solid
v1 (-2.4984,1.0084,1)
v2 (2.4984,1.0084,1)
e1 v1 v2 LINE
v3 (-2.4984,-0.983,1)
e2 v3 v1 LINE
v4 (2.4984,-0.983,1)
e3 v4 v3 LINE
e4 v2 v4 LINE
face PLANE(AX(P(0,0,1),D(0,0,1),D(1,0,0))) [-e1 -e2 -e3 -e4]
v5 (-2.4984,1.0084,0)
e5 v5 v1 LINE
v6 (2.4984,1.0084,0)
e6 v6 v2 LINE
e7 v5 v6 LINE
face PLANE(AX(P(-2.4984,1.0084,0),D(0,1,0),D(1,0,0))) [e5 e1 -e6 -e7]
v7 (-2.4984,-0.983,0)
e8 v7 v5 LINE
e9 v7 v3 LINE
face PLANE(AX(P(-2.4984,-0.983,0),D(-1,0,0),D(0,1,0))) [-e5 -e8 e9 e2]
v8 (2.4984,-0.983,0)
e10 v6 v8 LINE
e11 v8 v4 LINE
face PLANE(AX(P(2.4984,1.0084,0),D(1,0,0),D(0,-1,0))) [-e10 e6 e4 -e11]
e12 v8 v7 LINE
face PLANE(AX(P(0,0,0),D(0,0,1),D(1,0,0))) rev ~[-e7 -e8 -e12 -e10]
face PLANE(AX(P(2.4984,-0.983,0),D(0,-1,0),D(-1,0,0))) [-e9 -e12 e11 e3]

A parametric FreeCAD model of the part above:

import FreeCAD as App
import Part
import Sketcher

V = App.Vector

doc = App.newDocument("Part")
params = doc.addObject("Spreadsheet::Sheet", "Params")
for row, (alias, value) in enumerate([
    ("pad1_length", "1 mm"),
], start=1):
    params.set(f"A{row}", alias)
    params.set(f"B{row}", "=" + value)
    params.setAlias(f"B{row}", alias)

body = doc.addObject("PartDesign::Body", "Body")

# Sketch on XY plane
sketch1 = body.newObject("Sketcher::SketchObject", "Sketch")
sketch1.AttachmentSupport = (doc.getObject("XY_Plane"), [""])
sketch1.MapMode = "FlatFace"
sketch1.addGeometry(Part.LineSegment(V(2.5, 1, 0), V(-2.5, 1, 0)), False)
sketch1.addGeometry(Part.LineSegment(V(-2.5, 1, 0), V(-2.5, -1, 0)), False)
sketch1.addGeometry(Part.LineSegment(V(-2.5, -1, 0), V(2.5, -1, 0)), False)
sketch1.addGeometry(Part.LineSegment(V(2.5, -1, 0), V(2.5, 1, 0)), False)
sketch1.addConstraint(Sketcher.Constraint("Coincident", 0, 2, 1, 1))
sketch1.addConstraint(Sketcher.Constraint("Coincident", 1, 2, 2, 1))
sketch1.addConstraint(Sketcher.Constraint("Coincident", 2, 2, 3, 1))
sketch1.addConstraint(Sketcher.Constraint("Coincident", 3, 2, 0, 1))
sketch1.addConstraint(Sketcher.Constraint("Horizontal", 0))
sketch1.addConstraint(Sketcher.Constraint("Vertical", 1))
sketch1.addConstraint(Sketcher.Constraint("Horizontal", 2))
sketch1.addConstraint(Sketcher.Constraint("Vertical", 3))
sketch1.addConstraint(Sketcher.Constraint("DistanceX", 0, 2, 0, 1, 4.9968))
sketch1.addConstraint(Sketcher.Constraint("DistanceY", 1, 2, 1, 1, 1.9914))
sketch1.addConstraint(Sketcher.Constraint("DistanceY", 1, 2, -1, 1, 0.983))
sketch1.addConstraint(Sketcher.Constraint("DistanceX", 0, 2, -1, 1, 2.4984))
pad1 = body.newObject("PartDesign::Pad", "Pad")
pad1.Profile = sketch1
pad1.setExpression("Length", "Params.pad1_length")

doc.recompute()
